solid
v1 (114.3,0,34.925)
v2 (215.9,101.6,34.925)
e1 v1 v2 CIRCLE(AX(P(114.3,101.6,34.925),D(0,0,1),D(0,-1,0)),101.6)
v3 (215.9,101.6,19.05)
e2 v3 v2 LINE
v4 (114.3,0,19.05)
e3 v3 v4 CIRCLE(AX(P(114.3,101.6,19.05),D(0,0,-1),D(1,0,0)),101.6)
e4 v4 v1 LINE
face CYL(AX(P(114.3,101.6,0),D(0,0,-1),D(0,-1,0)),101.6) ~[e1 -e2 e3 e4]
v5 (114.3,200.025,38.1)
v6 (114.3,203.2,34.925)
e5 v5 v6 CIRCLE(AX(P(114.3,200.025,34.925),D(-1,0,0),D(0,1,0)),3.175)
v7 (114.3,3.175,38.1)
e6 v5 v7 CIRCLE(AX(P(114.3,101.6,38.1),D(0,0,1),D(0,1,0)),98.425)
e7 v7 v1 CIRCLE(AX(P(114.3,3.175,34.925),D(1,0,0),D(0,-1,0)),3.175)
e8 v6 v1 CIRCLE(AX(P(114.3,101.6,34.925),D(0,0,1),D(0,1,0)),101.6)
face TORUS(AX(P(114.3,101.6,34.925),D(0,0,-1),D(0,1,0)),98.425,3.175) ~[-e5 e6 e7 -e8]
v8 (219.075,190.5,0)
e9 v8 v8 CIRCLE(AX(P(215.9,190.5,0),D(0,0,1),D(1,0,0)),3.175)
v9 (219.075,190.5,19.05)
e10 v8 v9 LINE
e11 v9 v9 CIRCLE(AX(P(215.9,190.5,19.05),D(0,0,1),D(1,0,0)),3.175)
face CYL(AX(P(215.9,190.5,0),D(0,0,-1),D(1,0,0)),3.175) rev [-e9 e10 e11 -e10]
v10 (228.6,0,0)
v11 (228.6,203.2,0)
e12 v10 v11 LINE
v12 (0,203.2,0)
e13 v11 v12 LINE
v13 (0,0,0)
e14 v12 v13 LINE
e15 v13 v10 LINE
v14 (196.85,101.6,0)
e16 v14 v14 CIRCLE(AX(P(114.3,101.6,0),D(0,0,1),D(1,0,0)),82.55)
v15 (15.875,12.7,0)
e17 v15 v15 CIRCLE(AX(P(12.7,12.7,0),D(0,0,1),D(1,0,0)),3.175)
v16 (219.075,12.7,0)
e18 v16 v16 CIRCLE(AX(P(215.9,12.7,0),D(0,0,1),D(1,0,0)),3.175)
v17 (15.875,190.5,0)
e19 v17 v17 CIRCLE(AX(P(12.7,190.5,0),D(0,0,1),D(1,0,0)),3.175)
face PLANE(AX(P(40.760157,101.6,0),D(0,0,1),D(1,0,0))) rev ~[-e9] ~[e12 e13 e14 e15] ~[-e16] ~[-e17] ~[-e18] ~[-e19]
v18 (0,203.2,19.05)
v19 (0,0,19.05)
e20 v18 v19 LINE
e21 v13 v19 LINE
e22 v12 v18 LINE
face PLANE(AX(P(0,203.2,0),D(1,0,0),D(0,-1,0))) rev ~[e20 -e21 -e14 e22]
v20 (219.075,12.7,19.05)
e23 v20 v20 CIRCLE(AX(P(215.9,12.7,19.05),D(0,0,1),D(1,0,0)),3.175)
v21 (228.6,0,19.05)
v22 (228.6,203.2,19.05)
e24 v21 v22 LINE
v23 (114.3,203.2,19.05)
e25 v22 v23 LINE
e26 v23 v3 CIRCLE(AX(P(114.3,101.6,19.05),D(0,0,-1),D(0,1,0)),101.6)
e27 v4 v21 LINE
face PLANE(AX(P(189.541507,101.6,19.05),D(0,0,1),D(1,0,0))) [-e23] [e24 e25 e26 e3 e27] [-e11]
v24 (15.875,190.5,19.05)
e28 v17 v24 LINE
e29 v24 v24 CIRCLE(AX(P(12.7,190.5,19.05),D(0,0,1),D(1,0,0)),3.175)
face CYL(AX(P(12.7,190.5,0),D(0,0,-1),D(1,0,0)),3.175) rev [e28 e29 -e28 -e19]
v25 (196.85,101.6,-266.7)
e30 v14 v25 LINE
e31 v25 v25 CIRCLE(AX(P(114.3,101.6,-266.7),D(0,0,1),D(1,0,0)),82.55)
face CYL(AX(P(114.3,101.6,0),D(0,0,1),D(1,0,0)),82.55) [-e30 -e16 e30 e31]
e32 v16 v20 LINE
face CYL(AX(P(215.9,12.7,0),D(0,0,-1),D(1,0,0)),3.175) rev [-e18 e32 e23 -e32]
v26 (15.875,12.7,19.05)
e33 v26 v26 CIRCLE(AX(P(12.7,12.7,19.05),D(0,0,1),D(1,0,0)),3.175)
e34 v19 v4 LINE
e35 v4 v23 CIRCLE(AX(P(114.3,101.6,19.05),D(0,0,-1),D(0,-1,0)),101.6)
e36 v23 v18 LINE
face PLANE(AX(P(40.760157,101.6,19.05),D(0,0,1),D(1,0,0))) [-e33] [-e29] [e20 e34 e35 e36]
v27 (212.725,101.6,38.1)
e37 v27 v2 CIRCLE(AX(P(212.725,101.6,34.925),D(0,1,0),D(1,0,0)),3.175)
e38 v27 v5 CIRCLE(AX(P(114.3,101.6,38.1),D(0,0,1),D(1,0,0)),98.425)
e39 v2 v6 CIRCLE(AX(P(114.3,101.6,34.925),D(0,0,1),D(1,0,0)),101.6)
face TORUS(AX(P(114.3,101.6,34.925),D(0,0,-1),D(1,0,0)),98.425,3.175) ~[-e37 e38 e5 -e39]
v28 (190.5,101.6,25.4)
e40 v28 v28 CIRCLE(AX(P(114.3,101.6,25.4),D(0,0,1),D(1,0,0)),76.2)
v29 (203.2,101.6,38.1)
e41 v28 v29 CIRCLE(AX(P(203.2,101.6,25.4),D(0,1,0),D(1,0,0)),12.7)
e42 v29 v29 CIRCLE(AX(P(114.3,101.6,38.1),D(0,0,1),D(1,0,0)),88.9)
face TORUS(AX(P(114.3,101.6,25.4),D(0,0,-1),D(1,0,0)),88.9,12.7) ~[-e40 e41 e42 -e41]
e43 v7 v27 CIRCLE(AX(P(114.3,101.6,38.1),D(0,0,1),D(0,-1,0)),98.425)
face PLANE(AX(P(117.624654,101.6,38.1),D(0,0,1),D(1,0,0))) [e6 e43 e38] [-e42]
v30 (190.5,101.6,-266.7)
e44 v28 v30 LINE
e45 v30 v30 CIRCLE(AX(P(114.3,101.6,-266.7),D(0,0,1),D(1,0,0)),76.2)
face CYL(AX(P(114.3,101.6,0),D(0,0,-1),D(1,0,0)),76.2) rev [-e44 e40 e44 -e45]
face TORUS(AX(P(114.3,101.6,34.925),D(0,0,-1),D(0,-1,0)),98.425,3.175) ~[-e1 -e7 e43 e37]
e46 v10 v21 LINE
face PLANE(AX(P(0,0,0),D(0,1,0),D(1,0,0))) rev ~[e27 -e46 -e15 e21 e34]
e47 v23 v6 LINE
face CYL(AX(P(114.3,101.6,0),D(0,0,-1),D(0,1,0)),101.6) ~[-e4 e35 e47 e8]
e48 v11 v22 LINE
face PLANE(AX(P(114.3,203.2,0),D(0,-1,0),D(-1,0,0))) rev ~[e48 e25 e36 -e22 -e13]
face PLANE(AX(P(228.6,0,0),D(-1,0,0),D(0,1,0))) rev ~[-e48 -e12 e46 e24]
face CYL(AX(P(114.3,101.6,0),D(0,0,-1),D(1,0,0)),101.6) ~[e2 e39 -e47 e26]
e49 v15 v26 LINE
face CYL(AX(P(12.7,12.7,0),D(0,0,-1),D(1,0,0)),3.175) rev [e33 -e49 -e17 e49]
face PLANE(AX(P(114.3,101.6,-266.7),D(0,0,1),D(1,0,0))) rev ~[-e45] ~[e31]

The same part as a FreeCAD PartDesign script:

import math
import FreeCAD as App
import Part
import Sketcher
from FreeCAD import Vector
Q = App.Units.Quantity


def edges_at(feature, points):
    """Names of the edges that pass closest to the given points."""
    edges = feature.Shape.Edges
    near = lambda p: min(range(len(edges)), key=lambda i: edges[i].distToShape(Part.Vertex(*p))[0])
    return sorted({f"Edge{near(p) + 1}" for p in points})

doc = App.newDocument("Part")
body = doc.addObject("PartDesign::Body", "Body")

sketch1 = doc.addObject("Sketcher::SketchObject", "Sketch")
body.addObject(sketch1)
sketch1.AttachmentSupport = (doc.XY_Plane, [""])
sketch1.MapMode = "FlatFace"
sketch1.addGeometry(Part.LineSegment(Vector(0, 203.2, 0), Vector(0, 0, 0)), False)
sketch1.addGeometry(Part.LineSegment(Vector(0, 0, 0), Vector(114.3, 0, 0)), False)
sketch1.addGeometry(Part.ArcOfCircle(Part.Circle(Vector(114.3, 101.6, 0), Vector(0, 0, 1), 101.6), math.radians(90), math.radians(270)), False)
sketch1.addGeometry(Part.LineSegment(Vector(114.3, 203.2, 0), Vector(0, 203.2, 0)), False)
sketch1.addGeometry(Part.Circle(Vector(12.7, 12.7, 0), Vector(0, 0, 1), 3.2), False)
sketch1.addGeometry(Part.Circle(Vector(12.7, 190.5, 0), Vector(0, 0, 1), 3.2), False)
sketch1.addConstraint(Sketcher.Constraint("Coincident", 0, 2, 1, 1))
sketch1.addConstraint(Sketcher.Constraint("Tangent", 1, 2, 2, 2))
sketch1.addConstraint(Sketcher.Constraint("Tangent", 2, 1, 3, 1))
sketch1.addConstraint(Sketcher.Constraint("Coincident", 3, 2, 0, 1))
sketch1.addConstraint(Sketcher.Constraint("Vertical", 0))
sketch1.addConstraint(Sketcher.Constraint("Horizontal", 1))
sketch1.addConstraint(Sketcher.Constraint("Horizontal", 3))
sketch1.addConstraint(Sketcher.Constraint("Coincident", 0, 2, -1, 1))
sketch1.addConstraint(Sketcher.Constraint("Equal", 4, 5))
sketch1.addConstraint(Sketcher.Constraint("Vertical", 4, 3, 5, 3))
sketch1.addConstraint(Sketcher.Constraint("Radius", 2, Q("4 in")))
sketch1.addConstraint(Sketcher.Constraint("Diameter", 4, Q("0.25 in")))
sketch1.addConstraint(Sketcher.Constraint("DistanceX", 1, 1, 1, 2, Q("4.5 in")))
sketch1.addConstraint(Sketcher.Constraint("DistanceX", 4, 3, 2, 3, Q("4 in")))
sketch1.addConstraint(Sketcher.Constraint("DistanceY", 4, 3, 5, 3, Q("7 in")))
sketch1.addConstraint(Sketcher.Constraint("DistanceY", -1, 1, 4, 3, Q("0.5 in")))
pad1 = doc.addObject("PartDesign::Pad", "Pad")
body.addObject(pad1)
pad1.Profile = sketch1
pad1.Length = Q("0.75 in")
body2 = doc.addObject("PartDesign::Body", "Body001")

sketch2 = doc.addObject("Sketcher::SketchObject", "Sketch001")
body2.addObject(sketch2)
sketch2.AttachmentSupport = (doc.getObject("XY_Plane001"), [""])
sketch2.MapMode = "FlatFace"
sketch2.addGeometry(Part.ArcOfCircle(Part.Circle(Vector(114.3, 101.6, 0), Vector(0, 0, 1), 101.6), math.radians(-90), math.radians(0)), False)
sketch2.addGeometry(Part.LineSegment(Vector(114.3, 0, 0), Vector(228.6, 0, 0)), False)
sketch2.addGeometry(Part.LineSegment(Vector(228.6, 0, 0), Vector(228.6, 203.2, 0)), False)
sketch2.addGeometry(Part.LineSegment(Vector(228.6, 203.2, 0), Vector(114.3, 203.2, 0)), False)
sketch2.addGeometry(Part.ArcOfCircle(Part.Circle(Vector(114.3, 101.6, 0), Vector(0, 0, 1), 101.6), math.radians(0), math.radians(90)), False)
sketch2.addGeometry(Part.Circle(Vector(215.9, 12.7, 0), Vector(0, 0, 1), 3.2), False)
sketch2.addGeometry(Part.Circle(Vector(215.9, 190.5, 0), Vector(0, 0, 1), 3.2), False)
sketch2.addConstraint(Sketcher.Constraint("Tangent", 0, 1, 1, 1))
sketch2.addConstraint(Sketcher.Constraint("Coincident", 1, 2, 2, 1))
sketch2.addConstraint(Sketcher.Constraint("Coincident", 2, 2, 3, 1))
sketch2.addConstraint(Sketcher.Constraint("Tangent", 3, 2, 4, 2))
sketch2.addConstraint(Sketcher.Constraint("Tangent", 4, 1, 0, 2))
sketch2.addConstraint(Sketcher.Constraint("Horizontal", 1))
sketch2.addConstraint(Sketcher.Constraint("Vertical", 2))
sketch2.addConstraint(Sketcher.Constraint("Horizontal", 3))
sketch2.addConstraint(Sketcher.Constraint("Equal", 0, 4))
sketch2.addConstraint(Sketcher.Constraint("Equal", 5, 6))
sketch2.addConstraint(Sketcher.Constraint("PointOnObject", 0, 1, -1))
sketch2.addConstraint(Sketcher.Constraint("Horizontal", 0, 3, 4, 1))
sketch2.addConstraint(Sketcher.Constraint("Vertical", 5, 3, 6, 3))
sketch2.addConstraint(Sketcher.Constraint("Vertical", 6, 3, 4, 1))
sketch2.addConstraint(Sketcher.Constraint("Radius", 0, Q("4 in")))
sketch2.addConstraint(Sketcher.Constraint("Diameter", 5, Q("0.25 in")))
sketch2.addConstraint(Sketcher.Constraint("DistanceX", 1, 1, 1, 2, Q("4.5 in")))
sketch2.addConstraint(Sketcher.Constraint("DistanceX", -1, 1, 1, 2, Q("9 in")))
sketch2.addConstraint(Sketcher.Constraint("DistanceY", 5, 3, 6, 3, Q("7 in")))
sketch2.addConstraint(Sketcher.Constraint("DistanceY", -1, 1, 5, 3, Q("0.5 in")))
pad2 = doc.addObject("PartDesign::Pad", "Pad001")
body2.addObject(pad2)
pad2.Profile = sketch2
pad2.Length = Q("0.75 in")
body.AllowCompound = True
doc.recompute()

boolean = doc.addObject("PartDesign::Boolean", "Boolean")
body.addObject(boolean)
boolean.Type = "Fuse"
boolean.addObjects([body2])

sketch3 = doc.addObject("Sketcher::SketchObject", "Sketch002")
body.addObject(sketch3)
sketch3.AttachmentSupport = (doc.XY_Plane, [""])
sketch3.MapMode = "FlatFace"
sketch3.addGeometry(Part.ArcOfCircle(Part.Circle(Vector(114, 102, 0), Vector(0, 0, 1), 102), math.radians(90), math.radians(270)), False)
sketch3.addGeometry(Part.ArcOfCircle(Part.Circle(Vector(114, 102, 0), Vector(0, 0, 1), 102), math.radians(-90), math.radians(0)), False)
sketch3.addGeometry(Part.ArcOfCircle(Part.Circle(Vector(114, 102, 0), Vector(0, 0, 1), 102), math.radians(0), math.radians(90)), False)
sketch3.addGeometry(Part.Circle(Vector(114, 102, 0), Vector(0, 0, 1), 76), False)
sketch3.addConstraint(Sketcher.Constraint("Tangent", 0, 2, 1, 1))
sketch3.addConstraint(Sketcher.Constraint("Tangent", 1, 2, 2, 1))
sketch3.addConstraint(Sketcher.Constraint("Tangent", 2, 2, 0, 1))
sketch3.addConstraint(Sketcher.Constraint("Coincident", 3, 3, 0, 3))
sketch3.addConstraint(Sketcher.Constraint("PointOnObject", 0, 2, -1))
sketch3.addConstraint(Sketcher.Constraint("Horizontal", 3, 3, 1, 2))
sketch3.addConstraint(Sketcher.Constraint("Vertical", 3, 3, 0, 2))
sketch3.addConstraint(Sketcher.Constraint("Vertical", 0, 2, 2, 2))
sketch3.addConstraint(Sketcher.Constraint("Diameter", 3, Q("6 in")))
sketch3.addConstraint(Sketcher.Constraint("Radius", 0, Q("4 in")))
sketch3.addConstraint(Sketcher.Constraint("DistanceX", -1, 1, 0, 3, Q("4.5 in")))
pad3 = doc.addObject("PartDesign::Pad", "Pad002")
body.addObject(pad3)
pad3.Profile = sketch3
pad3.Length = Q("1.5 in")

sketch4 = doc.addObject("Sketcher::SketchObject", "Sketch003")
body.addObject(sketch4)
sketch4.AttachmentSupport = (doc.XY_Plane, [""])
sketch4.MapMode = "FlatFace"
sketch4.addGeometry(Part.Circle(Vector(114, 102, 0), Vector(0, 0, 1), 83), False)
sketch4.addGeometry(Part.Circle(Vector(114, 102, 0), Vector(0, 0, 1), 76), False)
sketch4.addConstraint(Sketcher.Constraint("Coincident", 1, 3, 0, 3))
sketch4.addConstraint(Sketcher.Constraint("Diameter", 1, Q("6 in")))
sketch4.addConstraint(Sketcher.Constraint("Diameter", 0, Q("6.5 in")))
sketch4.addConstraint(Sketcher.Constraint("DistanceY", -1, 1, 0, 3, Q("4 in")))
sketch4.addConstraint(Sketcher.Constraint("DistanceX", -1, 1, 0, 3, Q("4.5 in")))
pad4 = doc.addObject("PartDesign::Pad", "Pad003")
body.addObject(pad4)
pad4.Profile = sketch4
pad4.Length = Q("10.5 in")
pad4.Reversed = True
doc.recompute()

fillet = doc.addObject("PartDesign::Fillet", "Fillet")
body.addObject(fillet)
fillet.Base = (pad4, edges_at(pad4, [(38.1, 101.6, 38.1)]))
fillet.Radius = Q("0.5 in")
doc.recompute()

fillet2 = doc.addObject("PartDesign::Fillet", "Fillet001")
body.addObject(fillet2)
fillet2.Base = (fillet, edges_at(fillet, [(12.7, 101.6, 38.1)]))
fillet2.Radius = Q("0.125 in")

doc.recompute()
